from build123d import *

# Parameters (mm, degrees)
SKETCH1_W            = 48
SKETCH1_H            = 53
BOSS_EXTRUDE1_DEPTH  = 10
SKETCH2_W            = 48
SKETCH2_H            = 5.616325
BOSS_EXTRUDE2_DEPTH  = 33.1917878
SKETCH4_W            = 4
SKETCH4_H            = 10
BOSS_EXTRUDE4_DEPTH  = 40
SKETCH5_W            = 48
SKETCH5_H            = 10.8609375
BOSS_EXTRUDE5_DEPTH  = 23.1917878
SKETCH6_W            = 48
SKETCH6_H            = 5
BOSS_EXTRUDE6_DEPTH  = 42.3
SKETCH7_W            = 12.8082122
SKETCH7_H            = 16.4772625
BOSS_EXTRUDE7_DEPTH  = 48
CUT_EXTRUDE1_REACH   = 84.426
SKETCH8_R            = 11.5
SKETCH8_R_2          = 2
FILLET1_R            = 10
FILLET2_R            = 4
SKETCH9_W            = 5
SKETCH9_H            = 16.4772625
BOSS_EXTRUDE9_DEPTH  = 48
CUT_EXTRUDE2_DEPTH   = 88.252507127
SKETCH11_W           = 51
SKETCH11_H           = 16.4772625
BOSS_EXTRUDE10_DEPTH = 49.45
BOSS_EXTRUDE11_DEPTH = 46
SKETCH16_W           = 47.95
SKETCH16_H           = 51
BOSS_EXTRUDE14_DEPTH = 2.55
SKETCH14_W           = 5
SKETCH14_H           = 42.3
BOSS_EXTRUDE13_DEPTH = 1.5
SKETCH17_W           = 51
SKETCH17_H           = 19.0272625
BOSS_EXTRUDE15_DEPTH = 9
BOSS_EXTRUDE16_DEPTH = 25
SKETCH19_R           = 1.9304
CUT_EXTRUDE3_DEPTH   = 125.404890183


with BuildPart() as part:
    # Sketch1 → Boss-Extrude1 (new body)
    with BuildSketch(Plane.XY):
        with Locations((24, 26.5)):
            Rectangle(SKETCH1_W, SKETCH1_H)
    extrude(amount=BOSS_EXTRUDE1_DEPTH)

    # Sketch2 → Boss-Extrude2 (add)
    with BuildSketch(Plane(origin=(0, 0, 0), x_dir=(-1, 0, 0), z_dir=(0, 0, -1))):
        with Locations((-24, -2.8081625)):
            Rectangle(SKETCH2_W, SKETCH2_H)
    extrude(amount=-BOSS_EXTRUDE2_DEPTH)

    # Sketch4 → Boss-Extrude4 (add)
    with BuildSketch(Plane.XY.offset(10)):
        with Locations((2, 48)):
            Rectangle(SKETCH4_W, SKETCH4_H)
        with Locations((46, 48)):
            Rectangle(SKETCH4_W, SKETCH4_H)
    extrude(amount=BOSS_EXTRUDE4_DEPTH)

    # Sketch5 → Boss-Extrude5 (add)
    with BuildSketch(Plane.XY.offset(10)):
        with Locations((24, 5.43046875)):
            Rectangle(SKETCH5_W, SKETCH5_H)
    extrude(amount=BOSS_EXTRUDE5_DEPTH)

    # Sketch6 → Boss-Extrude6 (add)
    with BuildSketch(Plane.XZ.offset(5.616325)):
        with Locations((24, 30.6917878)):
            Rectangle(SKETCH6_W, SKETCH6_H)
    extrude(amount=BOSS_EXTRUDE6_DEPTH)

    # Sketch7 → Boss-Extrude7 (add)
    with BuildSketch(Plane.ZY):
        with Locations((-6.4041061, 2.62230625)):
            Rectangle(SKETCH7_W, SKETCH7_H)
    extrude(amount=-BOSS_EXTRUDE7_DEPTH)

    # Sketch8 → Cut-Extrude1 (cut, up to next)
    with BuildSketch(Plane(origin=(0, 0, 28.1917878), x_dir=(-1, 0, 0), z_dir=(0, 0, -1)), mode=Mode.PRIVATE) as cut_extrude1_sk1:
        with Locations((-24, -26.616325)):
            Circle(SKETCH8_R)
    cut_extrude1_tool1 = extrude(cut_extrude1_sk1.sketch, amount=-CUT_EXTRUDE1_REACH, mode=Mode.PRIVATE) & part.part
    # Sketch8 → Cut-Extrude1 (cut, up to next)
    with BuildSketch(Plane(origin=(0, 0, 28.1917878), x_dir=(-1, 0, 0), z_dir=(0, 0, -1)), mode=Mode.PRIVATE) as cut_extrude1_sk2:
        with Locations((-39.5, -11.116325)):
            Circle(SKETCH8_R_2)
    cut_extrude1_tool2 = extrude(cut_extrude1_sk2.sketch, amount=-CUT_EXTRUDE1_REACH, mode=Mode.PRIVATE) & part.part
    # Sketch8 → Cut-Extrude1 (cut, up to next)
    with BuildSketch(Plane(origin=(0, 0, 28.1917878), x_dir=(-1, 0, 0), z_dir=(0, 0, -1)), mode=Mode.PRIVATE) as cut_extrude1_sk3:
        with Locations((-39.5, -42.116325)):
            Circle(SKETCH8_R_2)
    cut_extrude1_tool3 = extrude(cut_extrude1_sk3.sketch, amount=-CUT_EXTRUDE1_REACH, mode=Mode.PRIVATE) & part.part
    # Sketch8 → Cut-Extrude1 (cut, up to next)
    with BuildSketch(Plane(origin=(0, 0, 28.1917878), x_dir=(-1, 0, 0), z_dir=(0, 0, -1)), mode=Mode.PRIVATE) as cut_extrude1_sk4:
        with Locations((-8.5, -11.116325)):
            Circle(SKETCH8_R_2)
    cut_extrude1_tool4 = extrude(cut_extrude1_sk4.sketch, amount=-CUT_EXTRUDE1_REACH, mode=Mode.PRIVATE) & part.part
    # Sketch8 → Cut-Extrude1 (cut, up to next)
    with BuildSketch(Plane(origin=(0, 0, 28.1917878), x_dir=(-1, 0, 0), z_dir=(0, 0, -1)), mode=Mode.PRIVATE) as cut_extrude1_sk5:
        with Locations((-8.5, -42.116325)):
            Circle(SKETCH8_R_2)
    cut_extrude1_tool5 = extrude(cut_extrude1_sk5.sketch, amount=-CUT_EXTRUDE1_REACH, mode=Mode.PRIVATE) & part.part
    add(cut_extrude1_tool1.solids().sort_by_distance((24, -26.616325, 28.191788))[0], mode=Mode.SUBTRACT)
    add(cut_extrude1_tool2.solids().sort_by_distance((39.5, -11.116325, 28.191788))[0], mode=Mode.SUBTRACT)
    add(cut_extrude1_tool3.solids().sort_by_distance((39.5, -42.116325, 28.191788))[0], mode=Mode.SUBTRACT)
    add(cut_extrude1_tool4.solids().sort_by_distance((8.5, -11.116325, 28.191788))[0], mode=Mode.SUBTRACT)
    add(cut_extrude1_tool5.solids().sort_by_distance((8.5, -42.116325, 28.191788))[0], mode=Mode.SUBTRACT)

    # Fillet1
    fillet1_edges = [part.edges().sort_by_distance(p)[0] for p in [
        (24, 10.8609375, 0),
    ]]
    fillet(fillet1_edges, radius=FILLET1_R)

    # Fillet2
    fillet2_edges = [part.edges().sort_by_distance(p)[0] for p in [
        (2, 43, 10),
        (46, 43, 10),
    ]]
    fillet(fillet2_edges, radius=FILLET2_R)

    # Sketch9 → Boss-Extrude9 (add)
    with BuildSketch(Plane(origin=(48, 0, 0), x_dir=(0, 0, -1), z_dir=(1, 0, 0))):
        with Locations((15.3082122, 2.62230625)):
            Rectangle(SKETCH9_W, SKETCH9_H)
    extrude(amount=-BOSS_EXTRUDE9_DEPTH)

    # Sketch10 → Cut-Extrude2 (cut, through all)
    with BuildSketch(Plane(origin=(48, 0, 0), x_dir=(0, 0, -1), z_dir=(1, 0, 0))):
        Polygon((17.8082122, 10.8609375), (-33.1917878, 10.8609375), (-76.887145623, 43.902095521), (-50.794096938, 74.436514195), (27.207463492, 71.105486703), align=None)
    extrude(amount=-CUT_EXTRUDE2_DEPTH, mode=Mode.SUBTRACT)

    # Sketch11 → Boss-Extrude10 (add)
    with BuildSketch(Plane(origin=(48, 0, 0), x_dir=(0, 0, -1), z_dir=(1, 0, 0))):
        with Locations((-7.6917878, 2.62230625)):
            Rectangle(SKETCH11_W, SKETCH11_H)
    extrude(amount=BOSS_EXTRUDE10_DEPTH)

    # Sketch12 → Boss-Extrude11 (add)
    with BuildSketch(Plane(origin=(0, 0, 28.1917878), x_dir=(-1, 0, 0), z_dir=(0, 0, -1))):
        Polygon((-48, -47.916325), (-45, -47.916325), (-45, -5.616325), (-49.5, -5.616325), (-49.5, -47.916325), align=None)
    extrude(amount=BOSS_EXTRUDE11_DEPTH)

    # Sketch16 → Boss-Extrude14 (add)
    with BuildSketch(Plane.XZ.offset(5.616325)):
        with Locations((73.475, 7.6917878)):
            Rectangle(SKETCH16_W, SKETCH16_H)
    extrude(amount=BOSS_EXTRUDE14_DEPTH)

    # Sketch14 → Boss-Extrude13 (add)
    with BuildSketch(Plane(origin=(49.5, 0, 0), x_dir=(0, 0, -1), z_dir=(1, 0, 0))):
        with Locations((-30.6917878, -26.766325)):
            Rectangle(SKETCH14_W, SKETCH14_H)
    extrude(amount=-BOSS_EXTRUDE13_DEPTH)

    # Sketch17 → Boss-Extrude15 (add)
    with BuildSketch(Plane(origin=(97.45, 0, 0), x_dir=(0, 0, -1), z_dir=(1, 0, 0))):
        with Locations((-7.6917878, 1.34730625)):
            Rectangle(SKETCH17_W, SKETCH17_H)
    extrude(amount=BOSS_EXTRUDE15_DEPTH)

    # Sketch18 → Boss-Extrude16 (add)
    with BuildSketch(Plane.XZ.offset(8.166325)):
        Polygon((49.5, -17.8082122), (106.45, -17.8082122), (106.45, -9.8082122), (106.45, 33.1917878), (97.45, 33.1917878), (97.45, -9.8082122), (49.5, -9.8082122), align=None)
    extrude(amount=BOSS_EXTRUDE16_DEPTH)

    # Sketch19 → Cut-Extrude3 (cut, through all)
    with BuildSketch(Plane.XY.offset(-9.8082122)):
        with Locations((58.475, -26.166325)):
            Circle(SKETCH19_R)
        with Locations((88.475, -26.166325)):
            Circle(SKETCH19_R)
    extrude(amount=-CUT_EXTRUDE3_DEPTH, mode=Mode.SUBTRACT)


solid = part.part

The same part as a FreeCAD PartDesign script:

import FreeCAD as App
import Part
import Sketcher


def edges_at(feature, points):
    """Names of the edges that pass closest to the given points."""
    edges = feature.Shape.Edges
    near = lambda p: min(range(len(edges)), key=lambda i: edges[i].distToShape(Part.Vertex(*p))[0])
    return sorted({f"Edge{near(p) + 1}" for p in points})

doc = App.newDocument("Part")
params = doc.addObject("Spreadsheet::Sheet", "Params")
for row, (alias, value) in enumerate([
    ("sketch1_width", "48 mm"),
    ("sketch1_height", "53 mm"),
    ("pad1_length", "10 mm"),
    ("sketch2_width", "48 mm"),
    ("pad2_length", "33.191788 mm"),
    ("sketch3_width", "4 mm"),
    ("sketch3_height", "10 mm"),
    ("pad3_length", "40 mm"),
    ("sketch4_width", "48 mm"),
    ("pad4_length", "23.191788 mm"),
    ("sketch5_width", "48 mm"),
    ("sketch5_height", "5 mm"),
    ("pad5_length", "42.3 mm"),
    ("pad6_length", "48 mm"),
    ("sketch7_diameter", "23 mm"),
    ("sketch8_diameter", "4 mm"),
    ("sketch9_diameter", "4 mm"),
    ("sketch10_diameter", "4 mm"),
    ("sketch11_diameter", "4 mm"),
    ("fillet_radius", "10 mm"),
    ("fillet2_radius", "4 mm"),
    ("sketch12_height", "5 mm"),
    ("pad7_length", "48 mm"),
    ("sketch13_height", "51 mm"),
    ("sketch14_height", "51 mm"),
    ("pad8_length", "49.45 mm"),
    ("sketch15_width", "4.5 mm"),
    ("sketch15_height", "42.3 mm"),
    ("pad9_length", "46 mm"),
    ("sketch16_height", "51 mm"),
    ("sketch16_width", "47.95 mm"),
    ("pad10_length", "2.55 mm"),
    ("sketch17_height", "5 mm"),
    ("sketch17_width", "42.3 mm"),
    ("pad11_length", "1.5 mm"),
    ("sketch18_height", "51 mm"),
    ("pad12_length", "9 mm"),
    ("sketch19_width", "9 mm"),
    ("sketch19_height", "51 mm"),
    ("sketch19_height2", "43 mm"),
    ("sketch19_width2", "56.95 mm"),
    ("pad13_length", "25 mm"),
], start=1):
    params.set(f"A{row}", alias)
    params.set(f"B{row}", "=" + value)
    params.setAlias(f"B{row}", alias)

body = doc.addObject("PartDesign::Body", "Body")

sketch1 = body.newObject("Sketcher::SketchObject", "Sketch")
sketch1.AttachmentSupport = (doc.getObject("XY_Plane"), [""])
sketch1.MapMode = "FlatFace"
sketch1.addGeometry([
    Part.LineSegment(App.Vector(0, 53, 0), App.Vector(0, 0, 0)),
    Part.LineSegment(App.Vector(0, 0, 0), App.Vector(48, 0, 0)),
    Part.LineSegment(App.Vector(48, 0, 0), App.Vector(48, 53, 0)),
    Part.LineSegment(App.Vector(48, 53, 0), App.Vector(0, 53, 0)),
], False)
sketch1.addConstraint([
    Sketcher.Constraint("Coincident", 0, 2, 1, 1),
    Sketcher.Constraint("Coincident", 1, 2, 2, 1),
    Sketcher.Constraint("Coincident", 2, 2, 3, 1),
    Sketcher.Constraint("Coincident", 3, 2, 0, 1),
    Sketcher.Constraint("Vertical", 0),
    Sketcher.Constraint("Horizontal", 1),
    Sketcher.Constraint("Vertical", 2),
    Sketcher.Constraint("Horizontal", 3),
    Sketcher.Constraint("Coincident", 0, 2, -1, 1),
    Sketcher.Constraint("DistanceX", 1, 1, 1, 2, 48.0),
    Sketcher.Constraint("DistanceY", 0, 2, 0, 1, 53.0),
])
sketch1.setExpression("Constraints[9]", "Params.sketch1_width")
sketch1.setExpression("Constraints[10]", "Params.sketch1_height")
pad1 = body.newObject("PartDesign::Pad", "Pad")
pad1.Profile = sketch1
pad1.setExpression("Length", "Params.pad1_length")

sketch2 = body.newObject("Sketcher::SketchObject", "Sketch001")
sketch2.AttachmentSupport = (doc.getObject("XY_Plane"), [""])
sketch2.MapMode = "FlatFace"
sketch2.addGeometry([
    Part.LineSegment(App.Vector(48, 0, 0), App.Vector(48, -6, 0)),
    Part.LineSegment(App.Vector(48, -6, 0), App.Vector(0, -6, 0)),
    Part.LineSegment(App.Vector(0, -6, 0), App.Vector(0, 0, 0)),
    Part.LineSegment(App.Vector(0, 0, 0), App.Vector(48, 0, 0)),
], False)
sketch2.addConstraint([
    Sketcher.Constraint("Coincident", 0, 2, 1, 1),
    Sketcher.Constraint("Coincident", 1, 2, 2, 1),
    Sketcher.Constraint("Coincident", 2, 2, 3, 1),
    Sketcher.Constraint("Coincident", 3, 2, 0, 1),
    Sketcher.Constraint("Vertical", 0),
    Sketcher.Constraint("Horizontal", 1),
    Sketcher.Constraint("Vertical", 2),
    Sketcher.Constraint("Horizontal", 3),
    Sketcher.Constraint("Coincident", 2, 2, -1, 1),
    Sketcher.Constraint("DistanceX", 1, 2, 1, 1, 48.0),
    Sketcher.Constraint("DistanceY", 0, 2, 0, 1, 5.616325),
])
sketch2.setExpression("Constraints[9]", "Params.sketch2_width")
pad2 = body.newObject("PartDesign::Pad", "Pad001")
pad2.Profile = sketch2
pad2.setExpression("Length", "Params.pad2_length")

sketch3 = body.newObject("Sketcher::SketchObject", "Sketch002")
sketch3.AttachmentSupport = (doc.getObject("XY_Plane"), [""])
sketch3.MapMode = "FlatFace"
sketch3.AttachmentOffset = App.Placement(App.Vector(0, 0, 10), App.Rotation())
sketch3.addGeometry([
    Part.LineSegment(App.Vector(0, 53, 0), App.Vector(0, 43, 0)),
    Part.LineSegment(App.Vector(0, 43, 0), App.Vector(4, 43, 0)),
    Part.LineSegment(App.Vector(4, 43, 0), App.Vector(4, 53, 0)),
    Part.LineSegment(App.Vector(4, 53, 0), App.Vector(0, 53, 0)),
    Part.LineSegment(App.Vector(44, 53, 0), App.Vector(44, 43, 0)),
    Part.LineSegment(App.Vector(44, 43, 0), App.Vector(48, 43, 0)),
    Part.LineSegment(App.Vector(48, 43, 0), App.Vector(48, 53, 0)),
    Part.LineSegment(App.Vector(48, 53, 0), App.Vector(44, 53, 0)),
], False)
sketch3.addConstraint([
    Sketcher.Constraint("Coincident", 0, 2, 1, 1),
    Sketcher.Constraint("Coincident", 1, 2, 2, 1),
    Sketcher.Constraint("Coincident", 2, 2, 3, 1),
    Sketcher.Constraint("Coincident", 3, 2, 0, 1),
    Sketcher.Constraint("Coincident", 4, 2, 5, 1),
    Sketcher.Constraint("Coincident", 5, 2, 6, 1),
    Sketcher.Constraint("Coincident", 6, 2, 7, 1),
    Sketcher.Constraint("Coincident", 7, 2, 4, 1),
    Sketcher.Constraint("Vertical", 0),
    Sketcher.Constraint("Horizontal", 1),
    Sketcher.Constraint("Vertical", 2),
    Sketcher.Constraint("Horizontal", 3),
    Sketcher.Constraint("Vertical", 4),
    Sketcher.Constraint("Horizontal", 5),
    Sketcher.Constraint("Vertical", 6),
    Sketcher.Constraint("Horizontal", 7),
    Sketcher.Constraint("PointOnObject", 0, 2, -2),
    Sketcher.Constraint("Horizontal", 1, 2, 4, 2),
    Sketcher.Constraint("Horizontal", 3, 2, 6, 2),
    Sketcher.Constraint("Equal", 3, 5),
    Sketcher.Constraint("DistanceX", 1, 1, 1, 2, 4.0),
    Sketcher.Constraint("DistanceY", 0, 2, 0, 1, 10.0),
    Sketcher.Constraint("DistanceY", -1, 1, 0, 2, 43.0),
    Sketcher.Constraint("DistanceX", -1, 1, 4, 2, 44.0),
])
sketch3.setExpression("Constraints[20]", "Params.sketch3_width")
sketch3.setExpression("Constraints[21]", "Params.sketch3_height")
pad3 = body.newObject("PartDesign::Pad", "Pad002")
pad3.Profile = sketch3
pad3.setExpression("Length", "Params.pad3_length")

sketch4 = body.newObject("Sketcher::SketchObject", "Sketch003")
sketch4.AttachmentSupport = (doc.getObject("XY_Plane"), [""])
sketch4.MapMode = "FlatFace"
sketch4.AttachmentOffset = App.Placement(App.Vector(0, 0, 10), App.Rotation())
sketch4.addGeometry([
    Part.LineSegment(App.Vector(0, 11, 0), App.Vector(0, 0, 0)),
    Part.LineSegment(App.Vector(0, 0, 0), App.Vector(48, 0, 0)),
    Part.LineSegment(App.Vector(48, 0, 0), App.Vector(48, 11, 0)),
    Part.LineSegment(App.Vector(48, 11, 0), App.Vector(0, 11, 0)),
], False)
sketch4.addConstraint([
    Sketcher.Constraint("Coincident", 0, 2, 1, 1),
    Sketcher.Constraint("Coincident", 1, 2, 2, 1),
    Sketcher.Constraint("Coincident", 2, 2, 3, 1),
    Sketcher.Constraint("Coincident", 3, 2, 0, 1),
    Sketcher.Constraint("Vertical", 0),
    Sketcher.Constraint("Horizontal", 1),
    Sketcher.Constraint("Vertical", 2),
    Sketcher.Constraint("Horizontal", 3),
    Sketcher.Constraint("Coincident", 0, 2, -1, 1),
    Sketcher.Constraint("DistanceX", 1, 1, 1, 2, 48.0),
    Sketcher.Constraint("DistanceY", 0, 2, 0, 1, 10.860938),
])
sketch4.setExpression("Constraints[9]", "Params.sketch4_width")
pad4 = body.newObject("PartDesign::Pad", "Pad003")
pad4.Profile = sketch4
pad4.setExpression("Length", "Params.pad4_length")

sketch5 = body.newObject("Sketcher::SketchObject", "Sketch004")
sketch5.AttachmentSupport = (doc.getObject("XZ_Plane"), [""])
sketch5.MapMode = "FlatFace"
sketch5.AttachmentOffset = App.Placement(App.Vector(0, 0, 5.616325), App.Rotation())
sketch5.addGeometry([
    Part.LineSegment(App.Vector(0, 33, 0), App.Vector(0, 28, 0)),
    Part.LineSegment(App.Vector(0, 28, 0), App.Vector(48, 28, 0)),
    Part.LineSegment(App.Vector(48, 28, 0), App.Vector(48, 33, 0)),
    Part.LineSegment(App.Vector(48, 33, 0), App.Vector(0, 33, 0)),
], False)
sketch5.addConstraint([
    Sketcher.Constraint("Coincident", 0, 2, 1, 1),
    Sketcher.Constraint("Coincident", 1, 2, 2, 1),
    Sketcher.Constraint("Coincident", 2, 2, 3, 1),
    Sketcher.Constraint("Coincident", 3, 2, 0, 1),
    Sketcher.Constraint("Vertical", 0),
    Sketcher.Constraint("Horizontal", 1),
    Sketcher.Constraint("Vertical", 2),
    Sketcher.Constraint("Horizontal", 3),
    Sketcher.Constraint("PointOnObject", 0, 2, -2),
    Sketcher.Constraint("DistanceX", 1, 1, 1, 2, 48.0),
    Sketcher.Constraint("DistanceY", 0, 2, 0, 1, 5.0),
    Sketcher.Constraint("DistanceY", -1, 1, 0, 2, 28.191788),
])
sketch5.setExpression("Constraints[9]", "Params.sketch5_width")
sketch5.setExpression("Constraints[10]", "Params.sketch5_height")
pad5 = body.newObject("PartDesign::Pad", "Pad004")
pad5.Profile = sketch5
pad5.setExpression("Length", "Params.pad5_length")

sketch6 = body.newObject("Sketcher::SketchObject", "Sketch005")
sketch6.AttachmentSupport = (doc.getObject("YZ_Plane"), [""])
sketch6.MapMode = "FlatFace"
sketch6.addGeometry([
    Part.LineSegment(App.Vector(11, -13, 0), App.Vector(-6, -13, 0)),
    Part.LineSegment(App.Vector(-6, -13, 0), App.Vector(-6, 0, 0)),
    Part.LineSegment(App.Vector(-6, 0, 0), App.Vector(11, 0, 0)),
    Part.LineSegment(App.Vector(11, 0, 0), App.Vector(11, -13, 0)),
], False)
sketch6.addConstraint([
    Sketcher.Constraint("Coincident", 0, 2, 1, 1),
    Sketcher.Constraint("Coincident", 1, 2, 2, 1),
    Sketcher.Constraint("Coincident", 2, 2, 3, 1),
    Sketcher.Constraint("Coincident", 3, 2, 0, 1),
    Sketcher.Constraint("Horizontal", 0),
    Sketcher.Constraint("Vertical", 1),
    Sketcher.Constraint("Horizontal", 2),
    Sketcher.Constraint("Vertical", 3),
    Sketcher.Constraint("PointOnObject", 1, 2, -1),
    Sketcher.Constraint("DistanceX", 0, 2, 0, 1, 16.477263),
    Sketcher.Constraint("DistanceY", 1, 1, 1, 2, 12.808212),
    Sketcher.Constraint("DistanceX", 0, 2, -1, 1, 5.616325),
])
pad6 = body.newObject("PartDesign::Pad", "Pad005")
pad6.Profile = sketch6
pad6.setExpression("Length", "Params.pad6_length")

sketch7 = body.newObject("Sketcher::SketchObject", "Sketch006")
sketch7.AttachmentSupport = (doc.getObject("XY_Plane"), [""])
sketch7.MapMode = "FlatFace"
sketch7.AttachmentOffset = App.Placement(App.Vector(0, 0, 28.191788), App.Rotation())
sketch7.addGeometry(Part.Circle(App.Vector(24, -27, 0), App.Vector(0, 0, 1), 12), False)
sketch7.addConstraint([
    Sketcher.Constraint("Diameter", 0, 23.0),
    Sketcher.Constraint("DistanceX", -1, 1, 0, 3, 24.0),
    Sketcher.Constraint("DistanceY", 0, 3, -1, 1, 26.616325),
])
sketch7.setExpression("Constraints[0]", "Params.sketch7_diameter")
pocket1 = body.newObject("PartDesign::Pocket", "Pocket")
pocket1.Profile = sketch7
pocket1.Type = "UpToFirst"
pocket1.Reversed = True

sketch8 = body.newObject("Sketcher::SketchObject", "Sketch007")
sketch8.AttachmentSupport = (doc.getObject("XY_Plane"), [""])
sketch8.MapMode = "FlatFace"
sketch8.AttachmentOffset = App.Placement(App.Vector(0, 0, 28.191788), App.Rotation())
sketch8.addGeometry(Part.Circle(App.Vector(39.5, -11.1, 0), App.Vector(0, 0, 1), 2), False)
sketch8.addConstraint([
    Sketcher.Constraint("Diameter", 0, 4.0),
    Sketcher.Constraint("DistanceX", -1, 1, 0, 3, 39.5),
    Sketcher.Constraint("DistanceY", 0, 3, -1, 1, 11.116325),
])
sketch8.setExpression("Constraints[0]", "Params.sketch8_diameter")
pocket2 = body.newObject("PartDesign::Pocket", "Pocket001")
pocket2.Profile = sketch8
pocket2.Type = "UpToFirst"
pocket2.Reversed = True

sketch9 = body.newObject("Sketcher::SketchObject", "Sketch008")
sketch9.AttachmentSupport = (doc.getObject("XY_Plane"), [""])
sketch9.MapMode = "FlatFace"
sketch9.AttachmentOffset = App.Placement(App.Vector(0, 0, 28.191788), App.Rotation())
sketch9.addGeometry(Part.Circle(App.Vector(39.5, -42.1, 0), App.Vector(0, 0, 1), 2), False)
sketch9.addConstraint([
    Sketcher.Constraint("Diameter", 0, 4.0),
    Sketcher.Constraint("DistanceX", -1, 1, 0, 3, 39.5),
    Sketcher.Constraint("DistanceY", 0, 3, -1, 1, 42.116325),
])
sketch9.setExpression("Constraints[0]", "Params.sketch9_diameter")
pocket3 = body.newObject("PartDesign::Pocket", "Pocket002")
pocket3.Profile = sketch9
pocket3.Type = "UpToFirst"
pocket3.Reversed = True

sketch10 = body.newObject("Sketcher::SketchObject", "Sketch009")
sketch10.AttachmentSupport = (doc.getObject("XY_Plane"), [""])
sketch10.MapMode = "FlatFace"
sketch10.AttachmentOffset = App.Placement(App.Vector(0, 0, 28.191788), App.Rotation())
sketch10.addGeometry(Part.Circle(App.Vector(8.5, -11.1, 0), App.Vector(0, 0, 1), 2), False)
sketch10.addConstraint([
    Sketcher.Constraint("Diameter", 0, 4.0),
    Sketcher.Constraint("DistanceX", -1, 1, 0, 3, 8.5),
    Sketcher.Constraint("DistanceY", 0, 3, -1, 1, 11.116325),
])
sketch10.setExpression("Constraints[0]", "Params.sketch10_diameter")
pocket4 = body.newObject("PartDesign::Pocket", "Pocket003")
pocket4.Profile = sketch10
pocket4.Type = "UpToFirst"
pocket4.Reversed = True

sketch11 = body.newObject("Sketcher::SketchObject", "Sketch010")
sketch11.AttachmentSupport = (doc.getObject("XY_Plane"), [""])
sketch11.MapMode = "FlatFace"
sketch11.AttachmentOffset = App.Placement(App.Vector(0, 0, 28.191788), App.Rotation())
sketch11.addGeometry(Part.Circle(App.Vector(8.5, -42.1, 0), App.Vector(0, 0, 1), 2), False)
sketch11.addConstraint([
    Sketcher.Constraint("Diameter", 0, 4.0),
    Sketcher.Constraint("DistanceX", -1, 1, 0, 3, 8.5),
    Sketcher.Constraint("DistanceY", 0, 3, -1, 1, 42.116325),
])
sketch11.setExpression("Constraints[0]", "Params.sketch11_diameter")
pocket5 = body.newObject("PartDesign::Pocket", "Pocket004")
pocket5.Profile = sketch11
pocket5.Type = "UpToFirst"
pocket5.Reversed = True
doc.recompute()

fillet = body.newObject("PartDesign::Fillet", "Fillet")
fillet.Base = (pocket5, edges_at(pocket5, [(24, 10.861, 0)]))
fillet.setExpression("Radius", "Params.fillet_radius")
doc.recompute()

fillet2 = body.newObject("PartDesign::Fillet", "Fillet001")
fillet2.Base = (fillet, edges_at(fillet, [(2, 43, 10), (46, 43, 10)]))
fillet2.setExpression("Radius", "Params.fillet2_radius")

sketch12 = body.newObject("Sketcher::SketchObject", "Sketch011")
sketch12.AttachmentSupport = (doc.getObject("YZ_Plane"), [""])
sketch12.MapMode = "FlatFace"
sketch12.AttachmentOffset = App.Placement(App.Vector(0, 0, 48), App.Rotation())
sketch12.addGeometry([
    Part.LineSegment(App.Vector(11, -13, 0), App.Vector(-6, -13, 0)),
    Part.LineSegment(App.Vector(-6, -13, 0), App.Vector(-6, -18, 0)),
    Part.LineSegment(App.Vector(-6, -18, 0), App.Vector(11, -18, 0)),
    Part.LineSegment(App.Vector(11, -18, 0), App.Vector(11, -13, 0)),
], False)
sketch12.addConstraint([
    Sketcher.Constraint("Coincident", 0, 2, 1, 1),
    Sketcher.Constraint("Coincident", 1, 2, 2, 1),
    Sketcher.Constraint("Coincident", 2, 2, 3, 1),
    Sketcher.Constraint("Coincident", 3, 2, 0, 1),
    Sketcher.Constraint("Horizontal", 0),
    Sketcher.Constraint("Vertical", 1),
    Sketcher.Constraint("Horizontal", 2),
    Sketcher.Constraint("Vertical", 3),
    Sketcher.Constraint("DistanceY", 1, 2, 1, 1, 5.0),
    Sketcher.Constraint("DistanceX", 0, 2, 0, 1, 16.477263),
    Sketcher.Constraint("DistanceX", 0, 2, -1, 1, 5.616325),
    Sketcher.Constraint("DistanceY", 0, 2, -1, 1, 12.808212),
])
sketch12.setExpression("Constraints[8]", "Params.sketch12_height")
pad7 = body.newObject("PartDesign::Pad", "Pad006")
pad7.Profile = sketch12
pad7.setExpression("Length", "Params.pad7_length")
pad7.Reversed = True

sketch13 = body.newObject("Sketcher::SketchObject", "Sketch012")
sketch13.AttachmentSupport = (doc.getObject("YZ_Plane"), [""])
sketch13.MapMode = "FlatFace"
sketch13.AttachmentOffset = App.Placement(App.Vector(0, 0, 48), App.Rotation())
sketch13.addGeometry([
    Part.LineSegment(App.Vector(11, 33, 0), App.Vector(11, -18, 0)),
    Part.LineSegment(App.Vector(11, -18, 0), App.Vector(71, -27, 0)),
    Part.LineSegment(App.Vector(71, -27, 0), App.Vector(74, 51, 0)),
    Part.LineSegment(App.Vector(74, 51, 0), App.Vector(44, 77, 0)),
    Part.LineSegment(App.Vector(44, 77, 0), App.Vector(11, 33, 0)),
], False)
sketch13.addConstraint([
    Sketcher.Constraint("Coincident", 0, 2, 1, 1),
    Sketcher.Constraint("Coincident", 1, 2, 2, 1),
    Sketcher.Constraint("Coincident", 2, 2, 3, 1),
    Sketcher.Constraint("Coincident", 3, 2, 4, 1),
    Sketcher.Constraint("Coincident", 4, 2, 0, 1),
    Sketcher.Constraint("Vertical", 0),
    Sketcher.Constraint("DistanceY", 0, 2, 0, 1, 51.0),
    Sketcher.Constraint("Distance", 1, 60.973368),
    Sketcher.Constraint("DistanceX", 0, 2, 1, 2, 60.244549),
    Sketcher.Constraint("DistanceY", 1, 2, 2, 2, 78.00156),
    Sketcher.Constraint("DistanceX", 3, 2, 2, 2, 30.534419),
    Sketcher.Constraint("DistanceY", 2, 2, 3, 2, 26.093049),
    Sketcher.Constraint("DistanceX", 0, 2, 3, 2, 33.041158),
    Sketcher.Constraint("DistanceX", -1, 1, 0, 2, 10.860938),
    Sketcher.Constraint("DistanceY", 0, 2, -1, 1, 17.808212),
])
sketch13.setExpression("Constraints[6]", "Params.sketch13_height")
pocket6 = body.newObject("PartDesign::Pocket", "Pocket005")
pocket6.Profile = sketch13
pocket6.Type = "ThroughAll"

sketch14 = body.newObject("Sketcher::SketchObject", "Sketch013")
sketch14.AttachmentSupport = (doc.getObject("YZ_Plane"), [""])
sketch14.MapMode = "FlatFace"
sketch14.AttachmentOffset = App.Placement(App.Vector(0, 0, 48), App.Rotation())
sketch14.addGeometry([
    Part.LineSegment(App.Vector(11, 33, 0), App.Vector(-6, 33, 0)),
    Part.LineSegment(App.Vector(-6, 33, 0), App.Vector(-6, -18, 0)),
    Part.LineSegment(App.Vector(-6, -18, 0), App.Vector(11, -18, 0)),
    Part.LineSegment(App.Vector(11, -18, 0), App.Vector(11, 33, 0)),
], False)
sketch14.addConstraint([
    Sketcher.Constraint("Coincident", 0, 2, 1, 1),
    Sketcher.Constraint("Coincident", 1, 2, 2, 1),
    Sketcher.Constraint("Coincident", 2, 2, 3, 1),
    Sketcher.Constraint("Coincident", 3, 2, 0, 1),
    Sketcher.Constraint("Horizontal", 0),
    Sketcher.Constraint("Vertical", 1),
    Sketcher.Constraint("Horizontal", 2),
    Sketcher.Constraint("Vertical", 3),
    Sketcher.Constraint("DistanceY", 1, 2, 1, 1, 51.0),
    Sketcher.Constraint("DistanceX", 0, 2, 0, 1, 16.477263),
    Sketcher.Constraint("DistanceX", 0, 2, -1, 1, 5.616325),
    Sketcher.Constraint("DistanceY", -1, 1, 0, 2, 33.191788),
])
sketch14.setExpression("Constraints[8]", "Params.sketch14_height")
pad8 = body.newObject("PartDesign::Pad", "Pad007")
pad8.Profile = sketch14
pad8.setExpression("Length", "Params.pad8_length")

sketch15 = body.newObject("Sketcher::SketchObject", "Sketch014")
sketch15.AttachmentSupport = (doc.getObject("XY_Plane"), [""])
sketch15.MapMode = "FlatFace"
sketch15.AttachmentOffset = App.Placement(App.Vector(0, 0, 28.191788), App.Rotation())
sketch15.addGeometry([
    Part.LineSegment(App.Vector(45, -47.9, 0), App.Vector(45, -5.6, 0)),
    Part.LineSegment(App.Vector(45, -5.6, 0), App.Vector(49.5, -5.6, 0)),
    Part.LineSegment(App.Vector(49.5, -5.6, 0), App.Vector(49.5, -47.9, 0)),
    Part.LineSegment(App.Vector(49.5, -47.9, 0), App.Vector(45, -47.9, 0)),
], False)
sketch15.addConstraint([
    Sketcher.Constraint("Coincident", 0, 2, 1, 1),
    Sketcher.Constraint("Coincident", 1, 2, 2, 1),
    Sketcher.Constraint("Coincident", 2, 2, 3, 1),
    Sketcher.Constraint("Coincident", 3, 2, 0, 1),
    Sketcher.Constraint("Vertical", 0),
    Sketcher.Constraint("Horizontal", 1),
    Sketcher.Constraint("Vertical", 2),
    Sketcher.Constraint("Horizontal", 3),
    Sketcher.Constraint("DistanceX", 1, 1, 1, 2, 4.5),
    Sketcher.Constraint("DistanceY", 0, 1, 0, 2, 42.3),
    Sketcher.Constraint("DistanceX", -1, 1, 0, 2, 45.0),
    Sketcher.Constraint("DistanceY", 0, 2, -1, 1, 5.616325),
])
sketch15.setExpression("Constraints[8]", "Params.sketch15_width")
sketch15.setExpression("Constraints[9]", "Params.sketch15_height")
pad9 = body.newObject("PartDesign::Pad", "Pad008")
pad9.Profile = sketch15
pad9.setExpression("Length", "Params.pad9_length")
pad9.Reversed = True

sketch16 = body.newObject("Sketcher::SketchObject", "Sketch015")
sketch16.AttachmentSupport = (doc.getObject("XZ_Plane"), [""])
sketch16.MapMode = "FlatFace"
sketch16.AttachmentOffset = App.Placement(App.Vector(0, 0, 5.616325), App.Rotation())
sketch16.addGeometry([
    Part.LineSegment(App.Vector(50, 33, 0), App.Vector(50, -18, 0)),
    Part.LineSegment(App.Vector(50, -18, 0), App.Vector(97, -18, 0)),
    Part.LineSegment(App.Vector(97, -18, 0), App.Vector(97, 33, 0)),
    Part.LineSegment(App.Vector(97, 33, 0), App.Vector(50, 33, 0)),
], False)
sketch16.addConstraint([
    Sketcher.Constraint("Coincident", 0, 2, 1, 1),
    Sketcher.Constraint("Coincident", 1, 2, 2, 1),
    Sketcher.Constraint("Coincident", 2, 2, 3, 1),
    Sketcher.Constraint("Coincident", 3, 2, 0, 1),
    Sketcher.Constraint("Vertical", 0),
    Sketcher.Constraint("Horizontal", 1),
    Sketcher.Constraint("Vertical", 2),
    Sketcher.Constraint("Horizontal", 3),
    Sketcher.Constraint("DistanceY", 0, 2, 0, 1, 51.0),
    Sketcher.Constraint("DistanceX", 1, 1, 1, 2, 47.95),
    Sketcher.Constraint("DistanceX", -1, 1, 0, 2, 49.5),
    Sketcher.Constraint("DistanceY", 0, 2, -1, 1, 17.808212),
])
sketch16.setExpression("Constraints[8]", "Params.sketch16_height")
sketch16.setExpression("Constraints[9]", "Params.sketch16_width")
pad10 = body.newObject("PartDesign::Pad", "Pad009")
pad10.Profile = sketch16
pad10.setExpression("Length", "Params.pad10_length")

sketch17 = body.newObject("Sketcher::SketchObject", "Sketch016")
sketch17.AttachmentSupport = (doc.getObject("YZ_Plane"), [""])
sketch17.MapMode = "FlatFace"
sketch17.AttachmentOffset = App.Placement(App.Vector(0, 0, 49.5), App.Rotation())
sketch17.addGeometry([
    Part.LineSegment(App.Vector(-6, 33, 0), App.Vector(-48, 33, 0)),
    Part.LineSegment(App.Vector(-48, 33, 0), App.Vector(-48, 28, 0)),
    Part.LineSegment(App.Vector(-48, 28, 0), App.Vector(-6, 28, 0)),
    Part.LineSegment(App.Vector(-6, 28, 0), App.Vector(-6, 33, 0)),
], False)
sketch17.addConstraint([
    Sketcher.Constraint("Coincident", 0, 2, 1, 1),
    Sketcher.Constraint("Coincident", 1, 2, 2, 1),
    Sketcher.Constraint("Coincident", 2, 2, 3, 1),
    Sketcher.Constraint("Coincident", 3, 2, 0, 1),
    Sketcher.Constraint("Horizontal", 0),
    Sketcher.Constraint("Vertical", 1),
    Sketcher.Constraint("Horizontal", 2),
    Sketcher.Constraint("Vertical", 3),
    Sketcher.Constraint("DistanceY", 1, 2, 1, 1, 5.0),
    Sketcher.Constraint("DistanceX", 0, 2, 0, 1, 42.3),
    Sketcher.Constraint("DistanceX", 0, 2, -1, 1, 47.916325),
    Sketcher.Constraint("DistanceY", -1, 1, 0, 2, 33.191788),
])
sketch17.setExpression("Constraints[8]", "Params.sketch17_height")
sketch17.setExpression("Constraints[9]", "Params.sketch17_width")
pad11 = body.newObject("PartDesign::Pad", "Pad010")
pad11.Profile = sketch17
pad11.setExpression("Length", "Params.pad11_length")
pad11.Reversed = True

sketch18 = body.newObject("Sketcher::SketchObject", "Sketch017")
sketch18.AttachmentSupport = (doc.getObject("YZ_Plane"), [""])
sketch18.MapMode = "FlatFace"
sketch18.AttachmentOffset = App.Placement(App.Vector(0, 0, 97.45), App.Rotation())
sketch18.addGeometry([
    Part.LineSegment(App.Vector(11, 33, 0), App.Vector(-8, 33, 0)),
    Part.LineSegment(App.Vector(-8, 33, 0), App.Vector(-8, -18, 0)),
    Part.LineSegment(App.Vector(-8, -18, 0), App.Vector(11, -18, 0)),
    Part.LineSegment(App.Vector(11, -18, 0), App.Vector(11, 33, 0)),
], False)
sketch18.addConstraint([
    Sketcher.Constraint("Coincident", 0, 2, 1, 1),
    Sketcher.Constraint("Coincident", 1, 2, 2, 1),
    Sketcher.Constraint("Coincident", 2, 2, 3, 1),
    Sketcher.Constraint("Coincident", 3, 2, 0, 1),
    Sketcher.Constraint("Horizontal", 0),
    Sketcher.Constraint("Vertical", 1),
    Sketcher.Constraint("Horizontal", 2),
    Sketcher.Constraint("Vertical", 3),
    Sketcher.Constraint("DistanceY", 1, 2, 1, 1, 51.0),
    Sketcher.Constraint("DistanceX", 0, 2, 0, 1, 19.027262),
    Sketcher.Constraint("DistanceX", 0, 2, -1, 1, 8.166325),
    Sketcher.Constraint("DistanceY", -1, 1, 0, 2, 33.191788),
])
sketch18.setExpression("Constraints[8]", "Params.sketch18_height")
pad12 = body.newObject("PartDesign::Pad", "Pad011")
pad12.Profile = sketch18
pad12.setExpression("Length", "Params.pad12_length")

sketch19 = body.newObject("Sketcher::SketchObject", "Sketch018")
sketch19.AttachmentSupport = (doc.getObject("XZ_Plane"), [""])
sketch19.MapMode = "FlatFace"
sketch19.AttachmentOffset = App.Placement(App.Vector(0, 0, 8.166325), App.Rotation())
sketch19.addGeometry([
    Part.LineSegment(App.Vector(50, -18, 0), App.Vector(106, -18, 0)),
    Part.LineSegment(App.Vector(106, -18, 0), App.Vector(106, 33, 0)),
    Part.LineSegment(App.Vector(106, 33, 0), App.Vector(97, 33, 0)),
    Part.LineSegment(App.Vector(97, 33, 0), App.Vector(97, -10, 0)),
    Part.LineSegment(App.Vector(97, -10, 0), App.Vector(50, -10, 0)),
    Part.LineSegment(App.Vector(50, -10, 0), App.Vector(50, -18, 0)),
], False)
sketch19.addConstraint([
    Sketcher.Constraint("Coincident", 0, 2, 1, 1),
    Sketcher.Constraint("Coincident", 1, 2, 2, 1),
    Sketcher.Constraint("Coincident", 2, 2, 3, 1),
    Sketcher.Constraint("Coincident", 3, 2, 4, 1),
    Sketcher.Constraint("Coincident", 4, 2, 5, 1),
    Sketcher.Constraint("Coincident", 5, 2, 0, 1),
    Sketcher.Constraint("Horizontal", 0),
    Sketcher.Constraint("Vertical", 1),
    Sketcher.Constraint("Horizontal", 2),
    Sketcher.Constraint("Vertical", 3),
    Sketcher.Constraint("Horizontal", 4),
    Sketcher.Constraint("Vertical", 5),
    Sketcher.Constraint("DistanceX", 2, 2, 2, 1, 9.0),
    Sketcher.Constraint("DistanceY", 1, 1, 1, 2, 51.0),
    Sketcher.Constraint("DistanceY", 3, 2, 3, 1, 43.0),
    Sketcher.Constraint("DistanceX", 0, 1, 0, 2, 56.95),
    Sketcher.Constraint("DistanceX", -1, 1, 4, 2, 49.5),
    Sketcher.Constraint("DistanceY", 0, 2, -1, 1, 17.808212),
])
sketch19.setExpression("Constraints[12]", "Params.sketch19_width")
sketch19.setExpression("Constraints[13]", "Params.sketch19_height")
sketch19.setExpression("Constraints[14]", "Params.sketch19_height2")
sketch19.setExpression("Constraints[15]", "Params.sketch19_width2")
pad13 = body.newObject("PartDesign::Pad", "Pad012")
pad13.Profile = sketch19
pad13.setExpression("Length", "Params.pad13_length")

sketch20 = body.newObject("Sketcher::SketchObject", "Sketch019")
sketch20.AttachmentSupport = (doc.getObject("XY_Plane"), [""])
sketch20.MapMode = "FlatFace"
sketch20.AttachmentOffset = App.Placement(App.Vector(0, 0, -9.808212), App.Rotation())
sketch20.addGeometry([
    Part.Circle(App.Vector(58.5, -26.2, 0), App.Vector(0, 0, 1), 1.9),
    Part.Circle(App.Vector(88.5, -26.2, 0), App.Vector(0, 0, 1), 1.9),
], False)
sketch20.addConstraint([
    Sketcher.Constraint("Equal", 0, 1),
    Sketcher.Constraint("Horizontal", 0, 3, 1, 3),
    Sketcher.Constraint("DistanceX", 0, 3, 1, 3, 30.0),
    Sketcher.Constraint("Diameter", 0, 3.8608),
    Sketcher.Constraint("DistanceX", -1, 1, 0, 3, 58.475),
    Sketcher.Constraint("DistanceY", 0, 3, -1, 1, 26.166325),
])
pocket7 = body.newObject("PartDesign::Pocket", "Pocket006")
pocket7.Profile = sketch20
pocket7.Type = "ThroughAll"

doc.recompute()
